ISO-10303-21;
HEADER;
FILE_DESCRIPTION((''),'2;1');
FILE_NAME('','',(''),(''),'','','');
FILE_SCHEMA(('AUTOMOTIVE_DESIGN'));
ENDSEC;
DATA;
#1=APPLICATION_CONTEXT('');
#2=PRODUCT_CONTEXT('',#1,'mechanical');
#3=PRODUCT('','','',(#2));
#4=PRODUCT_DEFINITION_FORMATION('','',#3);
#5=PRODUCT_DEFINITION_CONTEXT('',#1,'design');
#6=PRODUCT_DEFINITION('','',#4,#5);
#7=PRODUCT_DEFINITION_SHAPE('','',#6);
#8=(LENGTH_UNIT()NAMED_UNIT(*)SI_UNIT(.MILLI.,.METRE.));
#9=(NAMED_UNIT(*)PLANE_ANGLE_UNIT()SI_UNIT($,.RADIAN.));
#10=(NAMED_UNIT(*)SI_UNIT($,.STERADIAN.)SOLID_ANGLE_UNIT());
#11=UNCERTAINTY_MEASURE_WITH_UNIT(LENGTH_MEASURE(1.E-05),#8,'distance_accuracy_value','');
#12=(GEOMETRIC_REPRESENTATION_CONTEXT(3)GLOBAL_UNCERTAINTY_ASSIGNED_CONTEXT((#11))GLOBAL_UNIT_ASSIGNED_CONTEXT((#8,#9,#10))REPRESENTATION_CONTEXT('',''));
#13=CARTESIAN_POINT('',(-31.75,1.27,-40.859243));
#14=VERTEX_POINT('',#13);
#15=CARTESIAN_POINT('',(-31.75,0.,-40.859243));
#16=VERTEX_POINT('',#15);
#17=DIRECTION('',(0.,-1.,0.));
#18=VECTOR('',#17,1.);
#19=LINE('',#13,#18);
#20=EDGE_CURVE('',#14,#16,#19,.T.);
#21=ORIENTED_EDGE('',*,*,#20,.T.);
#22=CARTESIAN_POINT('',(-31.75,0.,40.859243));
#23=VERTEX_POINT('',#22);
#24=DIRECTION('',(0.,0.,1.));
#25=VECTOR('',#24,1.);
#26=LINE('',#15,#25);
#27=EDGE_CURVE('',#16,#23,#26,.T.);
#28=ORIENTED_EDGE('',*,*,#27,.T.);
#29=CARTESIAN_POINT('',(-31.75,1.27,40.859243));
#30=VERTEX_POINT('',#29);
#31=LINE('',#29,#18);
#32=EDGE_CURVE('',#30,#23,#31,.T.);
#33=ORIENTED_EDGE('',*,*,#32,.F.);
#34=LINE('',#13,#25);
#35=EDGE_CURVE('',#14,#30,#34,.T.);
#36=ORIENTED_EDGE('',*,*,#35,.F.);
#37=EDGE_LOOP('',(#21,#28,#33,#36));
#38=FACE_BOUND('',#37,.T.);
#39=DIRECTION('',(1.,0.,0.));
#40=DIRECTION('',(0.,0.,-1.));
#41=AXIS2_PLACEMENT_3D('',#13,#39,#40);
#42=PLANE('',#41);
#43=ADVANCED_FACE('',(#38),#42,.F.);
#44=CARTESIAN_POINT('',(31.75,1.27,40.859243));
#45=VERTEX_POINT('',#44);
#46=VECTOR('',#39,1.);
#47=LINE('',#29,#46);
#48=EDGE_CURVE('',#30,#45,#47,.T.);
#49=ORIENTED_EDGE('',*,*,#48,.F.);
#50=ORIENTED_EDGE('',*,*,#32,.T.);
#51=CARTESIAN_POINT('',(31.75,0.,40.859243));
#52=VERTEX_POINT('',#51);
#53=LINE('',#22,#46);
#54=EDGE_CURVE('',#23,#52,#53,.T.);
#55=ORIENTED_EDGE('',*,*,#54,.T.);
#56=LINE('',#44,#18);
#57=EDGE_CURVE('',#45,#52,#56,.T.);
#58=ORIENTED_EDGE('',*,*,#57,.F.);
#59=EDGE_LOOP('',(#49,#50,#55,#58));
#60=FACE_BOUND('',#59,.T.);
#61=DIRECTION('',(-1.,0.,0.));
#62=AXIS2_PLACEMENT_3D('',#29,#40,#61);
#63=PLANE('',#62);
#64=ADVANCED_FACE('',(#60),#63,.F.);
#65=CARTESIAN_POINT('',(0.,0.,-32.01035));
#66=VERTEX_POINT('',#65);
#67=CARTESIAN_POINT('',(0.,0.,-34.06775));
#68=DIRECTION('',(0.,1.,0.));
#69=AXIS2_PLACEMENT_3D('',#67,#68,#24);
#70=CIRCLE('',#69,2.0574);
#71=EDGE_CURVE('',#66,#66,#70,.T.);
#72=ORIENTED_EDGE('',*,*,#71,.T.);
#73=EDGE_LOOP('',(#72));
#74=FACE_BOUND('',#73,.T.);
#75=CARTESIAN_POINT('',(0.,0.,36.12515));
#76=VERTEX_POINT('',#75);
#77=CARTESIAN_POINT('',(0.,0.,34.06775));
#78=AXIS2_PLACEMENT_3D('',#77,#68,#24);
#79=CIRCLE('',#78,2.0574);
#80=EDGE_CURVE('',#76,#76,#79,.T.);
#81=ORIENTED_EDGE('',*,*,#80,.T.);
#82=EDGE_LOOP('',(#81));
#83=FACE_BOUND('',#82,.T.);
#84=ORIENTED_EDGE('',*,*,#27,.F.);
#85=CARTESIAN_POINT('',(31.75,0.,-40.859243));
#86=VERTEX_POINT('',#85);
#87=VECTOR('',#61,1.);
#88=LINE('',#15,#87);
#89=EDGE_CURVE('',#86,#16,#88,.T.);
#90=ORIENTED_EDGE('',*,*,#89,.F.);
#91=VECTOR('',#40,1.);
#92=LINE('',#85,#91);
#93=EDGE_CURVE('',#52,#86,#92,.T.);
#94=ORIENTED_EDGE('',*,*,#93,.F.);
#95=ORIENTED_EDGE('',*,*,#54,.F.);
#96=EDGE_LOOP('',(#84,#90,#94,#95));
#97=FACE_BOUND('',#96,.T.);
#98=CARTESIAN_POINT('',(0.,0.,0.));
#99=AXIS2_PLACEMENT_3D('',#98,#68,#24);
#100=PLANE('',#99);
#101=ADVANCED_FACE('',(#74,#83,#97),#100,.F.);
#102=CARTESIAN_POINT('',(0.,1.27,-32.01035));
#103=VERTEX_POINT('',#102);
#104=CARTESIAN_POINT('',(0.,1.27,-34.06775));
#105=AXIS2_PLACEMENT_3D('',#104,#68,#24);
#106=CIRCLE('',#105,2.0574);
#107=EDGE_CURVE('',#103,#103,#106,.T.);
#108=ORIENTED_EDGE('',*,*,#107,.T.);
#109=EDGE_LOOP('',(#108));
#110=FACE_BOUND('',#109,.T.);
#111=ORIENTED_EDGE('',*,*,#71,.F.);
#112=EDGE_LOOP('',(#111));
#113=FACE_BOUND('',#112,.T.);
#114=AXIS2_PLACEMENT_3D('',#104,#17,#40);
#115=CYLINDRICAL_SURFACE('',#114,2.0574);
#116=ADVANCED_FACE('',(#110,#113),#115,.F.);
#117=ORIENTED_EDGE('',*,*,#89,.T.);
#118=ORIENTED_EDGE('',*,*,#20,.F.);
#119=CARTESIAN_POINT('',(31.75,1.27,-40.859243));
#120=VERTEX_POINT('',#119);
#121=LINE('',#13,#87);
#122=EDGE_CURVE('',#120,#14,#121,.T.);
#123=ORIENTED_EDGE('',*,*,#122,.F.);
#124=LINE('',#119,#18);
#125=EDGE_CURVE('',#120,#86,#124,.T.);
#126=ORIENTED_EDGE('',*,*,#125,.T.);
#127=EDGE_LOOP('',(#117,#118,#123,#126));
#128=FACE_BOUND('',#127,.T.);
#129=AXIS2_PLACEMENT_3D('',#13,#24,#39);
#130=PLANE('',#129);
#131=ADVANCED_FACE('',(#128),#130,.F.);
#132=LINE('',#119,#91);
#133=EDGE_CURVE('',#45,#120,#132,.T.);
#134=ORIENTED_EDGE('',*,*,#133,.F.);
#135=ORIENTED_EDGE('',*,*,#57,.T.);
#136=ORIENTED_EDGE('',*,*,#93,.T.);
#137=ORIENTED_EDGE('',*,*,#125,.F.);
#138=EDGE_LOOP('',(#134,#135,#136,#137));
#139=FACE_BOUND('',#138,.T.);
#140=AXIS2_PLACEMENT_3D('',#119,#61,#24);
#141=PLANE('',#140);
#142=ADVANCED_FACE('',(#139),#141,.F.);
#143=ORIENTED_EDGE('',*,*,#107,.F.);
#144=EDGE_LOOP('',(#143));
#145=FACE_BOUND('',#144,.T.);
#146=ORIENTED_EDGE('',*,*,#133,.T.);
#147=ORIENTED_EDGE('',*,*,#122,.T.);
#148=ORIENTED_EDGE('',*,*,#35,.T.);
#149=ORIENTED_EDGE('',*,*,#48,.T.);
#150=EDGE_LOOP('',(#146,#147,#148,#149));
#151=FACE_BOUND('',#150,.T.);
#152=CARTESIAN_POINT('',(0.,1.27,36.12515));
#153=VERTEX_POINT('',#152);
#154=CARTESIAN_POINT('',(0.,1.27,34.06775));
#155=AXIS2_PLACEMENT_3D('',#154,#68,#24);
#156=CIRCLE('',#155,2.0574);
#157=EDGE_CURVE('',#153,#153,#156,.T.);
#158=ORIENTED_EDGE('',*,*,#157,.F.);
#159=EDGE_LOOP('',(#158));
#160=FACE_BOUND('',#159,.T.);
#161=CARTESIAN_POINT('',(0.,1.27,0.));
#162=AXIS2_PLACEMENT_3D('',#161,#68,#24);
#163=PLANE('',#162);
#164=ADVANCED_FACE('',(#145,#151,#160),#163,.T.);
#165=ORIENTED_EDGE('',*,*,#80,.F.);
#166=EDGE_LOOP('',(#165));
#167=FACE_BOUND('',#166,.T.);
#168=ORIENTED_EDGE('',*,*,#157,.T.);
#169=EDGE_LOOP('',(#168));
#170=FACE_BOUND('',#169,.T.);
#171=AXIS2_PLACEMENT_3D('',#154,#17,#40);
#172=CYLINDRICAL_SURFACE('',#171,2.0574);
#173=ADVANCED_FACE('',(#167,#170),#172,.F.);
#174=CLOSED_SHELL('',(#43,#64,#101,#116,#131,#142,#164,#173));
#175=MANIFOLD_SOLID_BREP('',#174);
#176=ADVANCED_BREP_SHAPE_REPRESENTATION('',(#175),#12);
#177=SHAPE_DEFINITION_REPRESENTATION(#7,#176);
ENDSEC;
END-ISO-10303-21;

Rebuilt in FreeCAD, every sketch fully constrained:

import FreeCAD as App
import Part
import Sketcher

V = App.Vector
Q = App.Units.Quantity


def add_polygon(sketch, points):
    """Adds a closed chain of lines whose ends are joined by coincident constraints."""
    first, n = sketch.GeometryCount, len(points)
    for a, b in zip(points, points[1:] + points[:1]):
        sketch.addGeometry(Part.LineSegment(App.Vector(*a, 0), App.Vector(*b, 0)), False)
    for i in range(n):
        sketch.addConstraint(Sketcher.Constraint("Coincident", first + i, 2, first + (i + 1) % n, 1))

doc = App.newDocument("Part")
body = doc.addObject("PartDesign::Body", "Body")

# Sketch on XZ plane
sketch1 = body.newObject("Sketcher::SketchObject", "Sketch")
sketch1.AttachmentSupport = (doc.getObject("XZ_Plane"), [""])
sketch1.MapMode = "FlatFace"
add_polygon(sketch1, [(-31.8, -40.9), (-31.8, 40.9), (31.8, 40.9), (31.8, -40.9)])  # lines 0-3
sketch1.addGeometry(Part.Circle(V(0, 34.1, 0), V(0, 0, 1), 2.1), False)  # 4
sketch1.addGeometry(Part.Circle(V(0, -34.1, 0), V(0, 0, 1), 2.1), False)  # 5
sketch1.addConstraint(Sketcher.Constraint("Vertical", 0))
sketch1.addConstraint(Sketcher.Constraint("Horizontal", 1))
sketch1.addConstraint(Sketcher.Constraint("Vertical", 2))
sketch1.addConstraint(Sketcher.Constraint("Horizontal", 3))
sketch1.addConstraint(Sketcher.Constraint("Equal", 4, 5))
sketch1.addConstraint(Sketcher.Constraint("Symmetric", 4, 3, 5, 3, -1, 1))
sketch1.addConstraint(Sketcher.Constraint("Symmetric", 0, 2, 2, 2, -1, 1))
sketch1.addConstraint(Sketcher.Constraint("PointOnObject", 4, 3, -2))
sketch1.addConstraint(Sketcher.Constraint("Diameter", 4, Q("0.162 in")))
sketch1.addConstraint(Sketcher.Constraint("DistanceX", 1, 1, 1, 2, Q("2.5 in")))
sketch1.addConstraint(Sketcher.Constraint("DistanceY", 5, 3, 4, 3, Q("2.6825 in")))
sketch1.addConstraint(Sketcher.Constraint("DistanceY", 0, 1, 0, 2, Q("81.718485 mm")))
pad1 = body.newObject("PartDesign::Pad", "Pad")
pad1.Profile = sketch1
pad1.Length = Q("0.05 in")
pad1.Reversed = True

doc.recompute()
